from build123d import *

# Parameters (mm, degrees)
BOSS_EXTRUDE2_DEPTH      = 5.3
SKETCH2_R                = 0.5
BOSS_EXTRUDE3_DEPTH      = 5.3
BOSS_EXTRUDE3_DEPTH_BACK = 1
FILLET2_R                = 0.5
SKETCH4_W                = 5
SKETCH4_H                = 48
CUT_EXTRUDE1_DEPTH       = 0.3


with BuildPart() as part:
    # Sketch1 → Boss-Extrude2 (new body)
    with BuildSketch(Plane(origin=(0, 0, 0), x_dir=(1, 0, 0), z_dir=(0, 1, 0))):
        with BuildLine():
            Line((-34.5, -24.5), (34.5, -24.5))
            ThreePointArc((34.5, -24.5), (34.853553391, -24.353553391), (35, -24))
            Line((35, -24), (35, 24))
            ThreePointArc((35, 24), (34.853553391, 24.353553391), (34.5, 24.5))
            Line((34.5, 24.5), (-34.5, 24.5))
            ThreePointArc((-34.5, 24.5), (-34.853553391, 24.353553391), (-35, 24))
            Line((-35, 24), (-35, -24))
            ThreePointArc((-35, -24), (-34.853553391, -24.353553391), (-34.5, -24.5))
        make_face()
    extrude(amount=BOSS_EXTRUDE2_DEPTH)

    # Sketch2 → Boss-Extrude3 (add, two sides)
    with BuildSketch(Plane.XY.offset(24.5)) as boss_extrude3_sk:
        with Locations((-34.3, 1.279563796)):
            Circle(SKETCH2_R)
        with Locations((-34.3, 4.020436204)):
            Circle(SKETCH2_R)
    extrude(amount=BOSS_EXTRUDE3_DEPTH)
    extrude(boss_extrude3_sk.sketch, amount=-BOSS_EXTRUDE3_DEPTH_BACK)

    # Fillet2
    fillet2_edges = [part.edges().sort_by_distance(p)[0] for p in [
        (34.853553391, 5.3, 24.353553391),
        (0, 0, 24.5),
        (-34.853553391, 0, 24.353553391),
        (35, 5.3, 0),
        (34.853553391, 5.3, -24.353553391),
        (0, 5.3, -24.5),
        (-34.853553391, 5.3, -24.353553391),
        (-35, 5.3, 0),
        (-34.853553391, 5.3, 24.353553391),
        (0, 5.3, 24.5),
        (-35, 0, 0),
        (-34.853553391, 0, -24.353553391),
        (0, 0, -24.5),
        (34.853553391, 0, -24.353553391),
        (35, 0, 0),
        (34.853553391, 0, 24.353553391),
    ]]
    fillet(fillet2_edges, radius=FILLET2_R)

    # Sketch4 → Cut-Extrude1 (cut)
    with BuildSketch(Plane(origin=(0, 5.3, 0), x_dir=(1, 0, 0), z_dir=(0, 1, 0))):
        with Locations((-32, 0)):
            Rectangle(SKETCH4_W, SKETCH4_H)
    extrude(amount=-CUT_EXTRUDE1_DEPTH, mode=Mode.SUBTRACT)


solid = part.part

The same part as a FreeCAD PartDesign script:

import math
import FreeCAD as App
import Part
import Sketcher
Q = App.Units.Quantity


def edges_at(feature, points):
    """Names of the edges that pass closest to the given points."""
    edges = feature.Shape.Edges
    near = lambda p: min(range(len(edges)), key=lambda i: edges[i].distToShape(Part.Vertex(*p))[0])
    return sorted({f"Edge{near(p) + 1}" for p in points})


def add_polygon(sketch, points):
    """Adds a closed chain of lines whose ends are joined by coincident constraints."""
    first, n = sketch.GeometryCount, len(points)
    for a, b in zip(points, points[1:] + points[:1]):
        sketch.addGeometry(Part.LineSegment(App.Vector(*a, 0), App.Vector(*b, 0)), False)
    for i in range(n):
        sketch.addConstraint(Sketcher.Constraint("Coincident", first + i, 2, first + (i + 1) % n, 1))

doc = App.newDocument("Part")
body = doc.addObject("PartDesign::Body", "Body")

# Sketch on XZ plane
sketch1 = body.newObject("Sketcher::SketchObject", "Sketch")
sketch1.AttachmentSupport = (doc.getObject("XZ_Plane"), [""])
sketch1.MapMode = "FlatFace"
sketch1.addGeometry([
    Part.LineSegment(App.Vector(-34.5, 24.5, 0), App.Vector(34.5, 24.5, 0)),  # 0
    Part.ArcOfCircle(Part.Circle(App.Vector(34.5, 24, 0), App.Vector(0, 0, 1), 0.5), math.radians(0), math.radians(90)),  # 1
    Part.LineSegment(App.Vector(35, 24, 0), App.Vector(35, -24, 0)),  # 2
    Part.ArcOfCircle(Part.Circle(App.Vector(34.5, -24, 0), App.Vector(0, 0, 1), 0.5), math.radians(-90), math.radians(0)),  # 3
    Part.LineSegment(App.Vector(34.5, -24.5, 0), App.Vector(-34.5, -24.5, 0)),  # 4
    Part.ArcOfCircle(Part.Circle(App.Vector(-34.5, -24, 0), App.Vector(0, 0, 1), 0.5), math.radians(180), math.radians(270)),  # 5
    Part.LineSegment(App.Vector(-35, -24, 0), App.Vector(-35, 24, 0)),  # 6
    Part.ArcOfCircle(Part.Circle(App.Vector(-34.5, 24, 0), App.Vector(0, 0, 1), 0.5), math.radians(90), math.radians(180)),  # 7
], False)
sketch1.addConstraint([
    Sketcher.Constraint("Tangent", 0, 2, 1, 2),
    Sketcher.Constraint("Tangent", 1, 1, 2, 1),
    Sketcher.Constraint("Tangent", 2, 2, 3, 2),
    Sketcher.Constraint("Tangent", 3, 1, 4, 1),
    Sketcher.Constraint("Tangent", 4, 2, 5, 2),
    Sketcher.Constraint("Tangent", 5, 1, 6, 1),
    Sketcher.Constraint("Tangent", 6, 2, 7, 2),
    Sketcher.Constraint("Tangent", 7, 1, 0, 1),
    Sketcher.Constraint("Horizontal", 0),
    Sketcher.Constraint("Vertical", 2),
    Sketcher.Constraint("Horizontal", 4),
    Sketcher.Constraint("Vertical", 6),
    Sketcher.Constraint("Equal", 1, 3),
    Sketcher.Constraint("Equal", 3, 5),
    Sketcher.Constraint("Equal", 5, 7),
    Sketcher.Constraint("Symmetric", 1, 3, 5, 3, -1, 1),
    Sketcher.Constraint("Radius", 1, Q("0.5 mm")),
    Sketcher.Constraint("DistanceX", 0, 1, 0, 2, Q("69 mm")),
    Sketcher.Constraint("DistanceY", 2, 2, 2, 1, Q("48 mm")),
])
pad1 = body.newObject("PartDesign::Pad", "Pad")
pad1.Profile = sketch1
pad1.Length = 5.3
pad1.Reversed = True

# Sketch on XY plane
sketch2 = body.newObject("Sketcher::SketchObject", "Sketch001")
sketch2.AttachmentSupport = (doc.getObject("XY_Plane"), [""])
sketch2.MapMode = "FlatFace"
sketch2.AttachmentOffset = App.Placement(App.Vector(0, 0, 24.5), App.Rotation())
sketch2.addGeometry([
    Part.Circle(App.Vector(-34.3, 1.3, 0), App.Vector(0, 0, 1), 0.5),
    Part.Circle(App.Vector(-34.3, 4, 0), App.Vector(0, 0, 1), 0.5),
], False)
sketch2.addConstraint([
    Sketcher.Constraint("Equal", 0, 1),
    Sketcher.Constraint("Vertical", 0, 3, 1, 3),
    Sketcher.Constraint("Diameter", 0, Q("1 mm")),
    Sketcher.Constraint("DistanceX", 0, 3, -1, 1, Q("34.3 mm")),
    Sketcher.Constraint("DistanceY", -1, 1, 0, 3, Q("1.279564 mm")),
    Sketcher.Constraint("DistanceY", -1, 1, 1, 3, Q("4.020436 mm")),
])
pad2 = body.newObject("PartDesign::Pad", "Pad001")
pad2.Profile = sketch2
pad2.Type = "TwoLengths"
pad2.Length = 5.3
pad2.Length2 = 1
doc.recompute()

fillet = body.newObject("PartDesign::Fillet", "Fillet")
fillet.Base = (pad2, edges_at(pad2, [
    (34.854, 5.3, 24.354),
    (0, 0, 24.5),
    (-34.854, 0, 24.354),
    (35, 5.3, 0),
    (34.854, 5.3, -24.354),
    (0, 5.3, -24.5),
    (-34.854, 5.3, -24.354),
    (-35, 5.3, 0),
    (-34.854, 5.3, 24.354),
    (0, 5.3, 24.5),
    (-35, 0, 0),
    (-34.854, 0, -24.354),
    (0, 0, -24.5),
    (34.854, 0, -24.354),
    (35, 0, 0),
    (34.854, 0, 24.354),
]))
fillet.Radius = 0.5

# Sketch on XZ plane
sketch3 = body.newObject("Sketcher::SketchObject", "Sketch002")
sketch3.AttachmentSupport = (doc.getObject("XZ_Plane"), [""])
sketch3.MapMode = "FlatFace"
sketch3.AttachmentOffset = App.Placement(App.Vector(0, 0, -5.3), App.Rotation())
add_polygon(sketch3, [(-34, -24), (-34, 24), (-30, 24), (-30, -24)])  # lines 0-3
sketch3.addConstraint([
    Sketcher.Constraint("Vertical", 0),
    Sketcher.Constraint("Horizontal", 1),
    Sketcher.Constraint("Vertical", 2),
    Sketcher.Constraint("Horizontal", 3),
    Sketcher.Constraint("DistanceX", 1, 1, 1, 2, Q("5 mm")),
    Sketcher.Constraint("DistanceY", 0, 1, 0, 2, Q("48 mm")),
    Sketcher.Constraint("DistanceY", -1, 1, 0, 2, Q("24 mm")),
    Sketcher.Constraint("DistanceX", 0, 2, -1, 1, Q("34.5 mm")),
])
pocket1 = body.newObject("PartDesign::Pocket", "Pocket")
pocket1.Profile = sketch3
pocket1.Length = 0.3
pocket1.Reversed = True

doc.recompute()
